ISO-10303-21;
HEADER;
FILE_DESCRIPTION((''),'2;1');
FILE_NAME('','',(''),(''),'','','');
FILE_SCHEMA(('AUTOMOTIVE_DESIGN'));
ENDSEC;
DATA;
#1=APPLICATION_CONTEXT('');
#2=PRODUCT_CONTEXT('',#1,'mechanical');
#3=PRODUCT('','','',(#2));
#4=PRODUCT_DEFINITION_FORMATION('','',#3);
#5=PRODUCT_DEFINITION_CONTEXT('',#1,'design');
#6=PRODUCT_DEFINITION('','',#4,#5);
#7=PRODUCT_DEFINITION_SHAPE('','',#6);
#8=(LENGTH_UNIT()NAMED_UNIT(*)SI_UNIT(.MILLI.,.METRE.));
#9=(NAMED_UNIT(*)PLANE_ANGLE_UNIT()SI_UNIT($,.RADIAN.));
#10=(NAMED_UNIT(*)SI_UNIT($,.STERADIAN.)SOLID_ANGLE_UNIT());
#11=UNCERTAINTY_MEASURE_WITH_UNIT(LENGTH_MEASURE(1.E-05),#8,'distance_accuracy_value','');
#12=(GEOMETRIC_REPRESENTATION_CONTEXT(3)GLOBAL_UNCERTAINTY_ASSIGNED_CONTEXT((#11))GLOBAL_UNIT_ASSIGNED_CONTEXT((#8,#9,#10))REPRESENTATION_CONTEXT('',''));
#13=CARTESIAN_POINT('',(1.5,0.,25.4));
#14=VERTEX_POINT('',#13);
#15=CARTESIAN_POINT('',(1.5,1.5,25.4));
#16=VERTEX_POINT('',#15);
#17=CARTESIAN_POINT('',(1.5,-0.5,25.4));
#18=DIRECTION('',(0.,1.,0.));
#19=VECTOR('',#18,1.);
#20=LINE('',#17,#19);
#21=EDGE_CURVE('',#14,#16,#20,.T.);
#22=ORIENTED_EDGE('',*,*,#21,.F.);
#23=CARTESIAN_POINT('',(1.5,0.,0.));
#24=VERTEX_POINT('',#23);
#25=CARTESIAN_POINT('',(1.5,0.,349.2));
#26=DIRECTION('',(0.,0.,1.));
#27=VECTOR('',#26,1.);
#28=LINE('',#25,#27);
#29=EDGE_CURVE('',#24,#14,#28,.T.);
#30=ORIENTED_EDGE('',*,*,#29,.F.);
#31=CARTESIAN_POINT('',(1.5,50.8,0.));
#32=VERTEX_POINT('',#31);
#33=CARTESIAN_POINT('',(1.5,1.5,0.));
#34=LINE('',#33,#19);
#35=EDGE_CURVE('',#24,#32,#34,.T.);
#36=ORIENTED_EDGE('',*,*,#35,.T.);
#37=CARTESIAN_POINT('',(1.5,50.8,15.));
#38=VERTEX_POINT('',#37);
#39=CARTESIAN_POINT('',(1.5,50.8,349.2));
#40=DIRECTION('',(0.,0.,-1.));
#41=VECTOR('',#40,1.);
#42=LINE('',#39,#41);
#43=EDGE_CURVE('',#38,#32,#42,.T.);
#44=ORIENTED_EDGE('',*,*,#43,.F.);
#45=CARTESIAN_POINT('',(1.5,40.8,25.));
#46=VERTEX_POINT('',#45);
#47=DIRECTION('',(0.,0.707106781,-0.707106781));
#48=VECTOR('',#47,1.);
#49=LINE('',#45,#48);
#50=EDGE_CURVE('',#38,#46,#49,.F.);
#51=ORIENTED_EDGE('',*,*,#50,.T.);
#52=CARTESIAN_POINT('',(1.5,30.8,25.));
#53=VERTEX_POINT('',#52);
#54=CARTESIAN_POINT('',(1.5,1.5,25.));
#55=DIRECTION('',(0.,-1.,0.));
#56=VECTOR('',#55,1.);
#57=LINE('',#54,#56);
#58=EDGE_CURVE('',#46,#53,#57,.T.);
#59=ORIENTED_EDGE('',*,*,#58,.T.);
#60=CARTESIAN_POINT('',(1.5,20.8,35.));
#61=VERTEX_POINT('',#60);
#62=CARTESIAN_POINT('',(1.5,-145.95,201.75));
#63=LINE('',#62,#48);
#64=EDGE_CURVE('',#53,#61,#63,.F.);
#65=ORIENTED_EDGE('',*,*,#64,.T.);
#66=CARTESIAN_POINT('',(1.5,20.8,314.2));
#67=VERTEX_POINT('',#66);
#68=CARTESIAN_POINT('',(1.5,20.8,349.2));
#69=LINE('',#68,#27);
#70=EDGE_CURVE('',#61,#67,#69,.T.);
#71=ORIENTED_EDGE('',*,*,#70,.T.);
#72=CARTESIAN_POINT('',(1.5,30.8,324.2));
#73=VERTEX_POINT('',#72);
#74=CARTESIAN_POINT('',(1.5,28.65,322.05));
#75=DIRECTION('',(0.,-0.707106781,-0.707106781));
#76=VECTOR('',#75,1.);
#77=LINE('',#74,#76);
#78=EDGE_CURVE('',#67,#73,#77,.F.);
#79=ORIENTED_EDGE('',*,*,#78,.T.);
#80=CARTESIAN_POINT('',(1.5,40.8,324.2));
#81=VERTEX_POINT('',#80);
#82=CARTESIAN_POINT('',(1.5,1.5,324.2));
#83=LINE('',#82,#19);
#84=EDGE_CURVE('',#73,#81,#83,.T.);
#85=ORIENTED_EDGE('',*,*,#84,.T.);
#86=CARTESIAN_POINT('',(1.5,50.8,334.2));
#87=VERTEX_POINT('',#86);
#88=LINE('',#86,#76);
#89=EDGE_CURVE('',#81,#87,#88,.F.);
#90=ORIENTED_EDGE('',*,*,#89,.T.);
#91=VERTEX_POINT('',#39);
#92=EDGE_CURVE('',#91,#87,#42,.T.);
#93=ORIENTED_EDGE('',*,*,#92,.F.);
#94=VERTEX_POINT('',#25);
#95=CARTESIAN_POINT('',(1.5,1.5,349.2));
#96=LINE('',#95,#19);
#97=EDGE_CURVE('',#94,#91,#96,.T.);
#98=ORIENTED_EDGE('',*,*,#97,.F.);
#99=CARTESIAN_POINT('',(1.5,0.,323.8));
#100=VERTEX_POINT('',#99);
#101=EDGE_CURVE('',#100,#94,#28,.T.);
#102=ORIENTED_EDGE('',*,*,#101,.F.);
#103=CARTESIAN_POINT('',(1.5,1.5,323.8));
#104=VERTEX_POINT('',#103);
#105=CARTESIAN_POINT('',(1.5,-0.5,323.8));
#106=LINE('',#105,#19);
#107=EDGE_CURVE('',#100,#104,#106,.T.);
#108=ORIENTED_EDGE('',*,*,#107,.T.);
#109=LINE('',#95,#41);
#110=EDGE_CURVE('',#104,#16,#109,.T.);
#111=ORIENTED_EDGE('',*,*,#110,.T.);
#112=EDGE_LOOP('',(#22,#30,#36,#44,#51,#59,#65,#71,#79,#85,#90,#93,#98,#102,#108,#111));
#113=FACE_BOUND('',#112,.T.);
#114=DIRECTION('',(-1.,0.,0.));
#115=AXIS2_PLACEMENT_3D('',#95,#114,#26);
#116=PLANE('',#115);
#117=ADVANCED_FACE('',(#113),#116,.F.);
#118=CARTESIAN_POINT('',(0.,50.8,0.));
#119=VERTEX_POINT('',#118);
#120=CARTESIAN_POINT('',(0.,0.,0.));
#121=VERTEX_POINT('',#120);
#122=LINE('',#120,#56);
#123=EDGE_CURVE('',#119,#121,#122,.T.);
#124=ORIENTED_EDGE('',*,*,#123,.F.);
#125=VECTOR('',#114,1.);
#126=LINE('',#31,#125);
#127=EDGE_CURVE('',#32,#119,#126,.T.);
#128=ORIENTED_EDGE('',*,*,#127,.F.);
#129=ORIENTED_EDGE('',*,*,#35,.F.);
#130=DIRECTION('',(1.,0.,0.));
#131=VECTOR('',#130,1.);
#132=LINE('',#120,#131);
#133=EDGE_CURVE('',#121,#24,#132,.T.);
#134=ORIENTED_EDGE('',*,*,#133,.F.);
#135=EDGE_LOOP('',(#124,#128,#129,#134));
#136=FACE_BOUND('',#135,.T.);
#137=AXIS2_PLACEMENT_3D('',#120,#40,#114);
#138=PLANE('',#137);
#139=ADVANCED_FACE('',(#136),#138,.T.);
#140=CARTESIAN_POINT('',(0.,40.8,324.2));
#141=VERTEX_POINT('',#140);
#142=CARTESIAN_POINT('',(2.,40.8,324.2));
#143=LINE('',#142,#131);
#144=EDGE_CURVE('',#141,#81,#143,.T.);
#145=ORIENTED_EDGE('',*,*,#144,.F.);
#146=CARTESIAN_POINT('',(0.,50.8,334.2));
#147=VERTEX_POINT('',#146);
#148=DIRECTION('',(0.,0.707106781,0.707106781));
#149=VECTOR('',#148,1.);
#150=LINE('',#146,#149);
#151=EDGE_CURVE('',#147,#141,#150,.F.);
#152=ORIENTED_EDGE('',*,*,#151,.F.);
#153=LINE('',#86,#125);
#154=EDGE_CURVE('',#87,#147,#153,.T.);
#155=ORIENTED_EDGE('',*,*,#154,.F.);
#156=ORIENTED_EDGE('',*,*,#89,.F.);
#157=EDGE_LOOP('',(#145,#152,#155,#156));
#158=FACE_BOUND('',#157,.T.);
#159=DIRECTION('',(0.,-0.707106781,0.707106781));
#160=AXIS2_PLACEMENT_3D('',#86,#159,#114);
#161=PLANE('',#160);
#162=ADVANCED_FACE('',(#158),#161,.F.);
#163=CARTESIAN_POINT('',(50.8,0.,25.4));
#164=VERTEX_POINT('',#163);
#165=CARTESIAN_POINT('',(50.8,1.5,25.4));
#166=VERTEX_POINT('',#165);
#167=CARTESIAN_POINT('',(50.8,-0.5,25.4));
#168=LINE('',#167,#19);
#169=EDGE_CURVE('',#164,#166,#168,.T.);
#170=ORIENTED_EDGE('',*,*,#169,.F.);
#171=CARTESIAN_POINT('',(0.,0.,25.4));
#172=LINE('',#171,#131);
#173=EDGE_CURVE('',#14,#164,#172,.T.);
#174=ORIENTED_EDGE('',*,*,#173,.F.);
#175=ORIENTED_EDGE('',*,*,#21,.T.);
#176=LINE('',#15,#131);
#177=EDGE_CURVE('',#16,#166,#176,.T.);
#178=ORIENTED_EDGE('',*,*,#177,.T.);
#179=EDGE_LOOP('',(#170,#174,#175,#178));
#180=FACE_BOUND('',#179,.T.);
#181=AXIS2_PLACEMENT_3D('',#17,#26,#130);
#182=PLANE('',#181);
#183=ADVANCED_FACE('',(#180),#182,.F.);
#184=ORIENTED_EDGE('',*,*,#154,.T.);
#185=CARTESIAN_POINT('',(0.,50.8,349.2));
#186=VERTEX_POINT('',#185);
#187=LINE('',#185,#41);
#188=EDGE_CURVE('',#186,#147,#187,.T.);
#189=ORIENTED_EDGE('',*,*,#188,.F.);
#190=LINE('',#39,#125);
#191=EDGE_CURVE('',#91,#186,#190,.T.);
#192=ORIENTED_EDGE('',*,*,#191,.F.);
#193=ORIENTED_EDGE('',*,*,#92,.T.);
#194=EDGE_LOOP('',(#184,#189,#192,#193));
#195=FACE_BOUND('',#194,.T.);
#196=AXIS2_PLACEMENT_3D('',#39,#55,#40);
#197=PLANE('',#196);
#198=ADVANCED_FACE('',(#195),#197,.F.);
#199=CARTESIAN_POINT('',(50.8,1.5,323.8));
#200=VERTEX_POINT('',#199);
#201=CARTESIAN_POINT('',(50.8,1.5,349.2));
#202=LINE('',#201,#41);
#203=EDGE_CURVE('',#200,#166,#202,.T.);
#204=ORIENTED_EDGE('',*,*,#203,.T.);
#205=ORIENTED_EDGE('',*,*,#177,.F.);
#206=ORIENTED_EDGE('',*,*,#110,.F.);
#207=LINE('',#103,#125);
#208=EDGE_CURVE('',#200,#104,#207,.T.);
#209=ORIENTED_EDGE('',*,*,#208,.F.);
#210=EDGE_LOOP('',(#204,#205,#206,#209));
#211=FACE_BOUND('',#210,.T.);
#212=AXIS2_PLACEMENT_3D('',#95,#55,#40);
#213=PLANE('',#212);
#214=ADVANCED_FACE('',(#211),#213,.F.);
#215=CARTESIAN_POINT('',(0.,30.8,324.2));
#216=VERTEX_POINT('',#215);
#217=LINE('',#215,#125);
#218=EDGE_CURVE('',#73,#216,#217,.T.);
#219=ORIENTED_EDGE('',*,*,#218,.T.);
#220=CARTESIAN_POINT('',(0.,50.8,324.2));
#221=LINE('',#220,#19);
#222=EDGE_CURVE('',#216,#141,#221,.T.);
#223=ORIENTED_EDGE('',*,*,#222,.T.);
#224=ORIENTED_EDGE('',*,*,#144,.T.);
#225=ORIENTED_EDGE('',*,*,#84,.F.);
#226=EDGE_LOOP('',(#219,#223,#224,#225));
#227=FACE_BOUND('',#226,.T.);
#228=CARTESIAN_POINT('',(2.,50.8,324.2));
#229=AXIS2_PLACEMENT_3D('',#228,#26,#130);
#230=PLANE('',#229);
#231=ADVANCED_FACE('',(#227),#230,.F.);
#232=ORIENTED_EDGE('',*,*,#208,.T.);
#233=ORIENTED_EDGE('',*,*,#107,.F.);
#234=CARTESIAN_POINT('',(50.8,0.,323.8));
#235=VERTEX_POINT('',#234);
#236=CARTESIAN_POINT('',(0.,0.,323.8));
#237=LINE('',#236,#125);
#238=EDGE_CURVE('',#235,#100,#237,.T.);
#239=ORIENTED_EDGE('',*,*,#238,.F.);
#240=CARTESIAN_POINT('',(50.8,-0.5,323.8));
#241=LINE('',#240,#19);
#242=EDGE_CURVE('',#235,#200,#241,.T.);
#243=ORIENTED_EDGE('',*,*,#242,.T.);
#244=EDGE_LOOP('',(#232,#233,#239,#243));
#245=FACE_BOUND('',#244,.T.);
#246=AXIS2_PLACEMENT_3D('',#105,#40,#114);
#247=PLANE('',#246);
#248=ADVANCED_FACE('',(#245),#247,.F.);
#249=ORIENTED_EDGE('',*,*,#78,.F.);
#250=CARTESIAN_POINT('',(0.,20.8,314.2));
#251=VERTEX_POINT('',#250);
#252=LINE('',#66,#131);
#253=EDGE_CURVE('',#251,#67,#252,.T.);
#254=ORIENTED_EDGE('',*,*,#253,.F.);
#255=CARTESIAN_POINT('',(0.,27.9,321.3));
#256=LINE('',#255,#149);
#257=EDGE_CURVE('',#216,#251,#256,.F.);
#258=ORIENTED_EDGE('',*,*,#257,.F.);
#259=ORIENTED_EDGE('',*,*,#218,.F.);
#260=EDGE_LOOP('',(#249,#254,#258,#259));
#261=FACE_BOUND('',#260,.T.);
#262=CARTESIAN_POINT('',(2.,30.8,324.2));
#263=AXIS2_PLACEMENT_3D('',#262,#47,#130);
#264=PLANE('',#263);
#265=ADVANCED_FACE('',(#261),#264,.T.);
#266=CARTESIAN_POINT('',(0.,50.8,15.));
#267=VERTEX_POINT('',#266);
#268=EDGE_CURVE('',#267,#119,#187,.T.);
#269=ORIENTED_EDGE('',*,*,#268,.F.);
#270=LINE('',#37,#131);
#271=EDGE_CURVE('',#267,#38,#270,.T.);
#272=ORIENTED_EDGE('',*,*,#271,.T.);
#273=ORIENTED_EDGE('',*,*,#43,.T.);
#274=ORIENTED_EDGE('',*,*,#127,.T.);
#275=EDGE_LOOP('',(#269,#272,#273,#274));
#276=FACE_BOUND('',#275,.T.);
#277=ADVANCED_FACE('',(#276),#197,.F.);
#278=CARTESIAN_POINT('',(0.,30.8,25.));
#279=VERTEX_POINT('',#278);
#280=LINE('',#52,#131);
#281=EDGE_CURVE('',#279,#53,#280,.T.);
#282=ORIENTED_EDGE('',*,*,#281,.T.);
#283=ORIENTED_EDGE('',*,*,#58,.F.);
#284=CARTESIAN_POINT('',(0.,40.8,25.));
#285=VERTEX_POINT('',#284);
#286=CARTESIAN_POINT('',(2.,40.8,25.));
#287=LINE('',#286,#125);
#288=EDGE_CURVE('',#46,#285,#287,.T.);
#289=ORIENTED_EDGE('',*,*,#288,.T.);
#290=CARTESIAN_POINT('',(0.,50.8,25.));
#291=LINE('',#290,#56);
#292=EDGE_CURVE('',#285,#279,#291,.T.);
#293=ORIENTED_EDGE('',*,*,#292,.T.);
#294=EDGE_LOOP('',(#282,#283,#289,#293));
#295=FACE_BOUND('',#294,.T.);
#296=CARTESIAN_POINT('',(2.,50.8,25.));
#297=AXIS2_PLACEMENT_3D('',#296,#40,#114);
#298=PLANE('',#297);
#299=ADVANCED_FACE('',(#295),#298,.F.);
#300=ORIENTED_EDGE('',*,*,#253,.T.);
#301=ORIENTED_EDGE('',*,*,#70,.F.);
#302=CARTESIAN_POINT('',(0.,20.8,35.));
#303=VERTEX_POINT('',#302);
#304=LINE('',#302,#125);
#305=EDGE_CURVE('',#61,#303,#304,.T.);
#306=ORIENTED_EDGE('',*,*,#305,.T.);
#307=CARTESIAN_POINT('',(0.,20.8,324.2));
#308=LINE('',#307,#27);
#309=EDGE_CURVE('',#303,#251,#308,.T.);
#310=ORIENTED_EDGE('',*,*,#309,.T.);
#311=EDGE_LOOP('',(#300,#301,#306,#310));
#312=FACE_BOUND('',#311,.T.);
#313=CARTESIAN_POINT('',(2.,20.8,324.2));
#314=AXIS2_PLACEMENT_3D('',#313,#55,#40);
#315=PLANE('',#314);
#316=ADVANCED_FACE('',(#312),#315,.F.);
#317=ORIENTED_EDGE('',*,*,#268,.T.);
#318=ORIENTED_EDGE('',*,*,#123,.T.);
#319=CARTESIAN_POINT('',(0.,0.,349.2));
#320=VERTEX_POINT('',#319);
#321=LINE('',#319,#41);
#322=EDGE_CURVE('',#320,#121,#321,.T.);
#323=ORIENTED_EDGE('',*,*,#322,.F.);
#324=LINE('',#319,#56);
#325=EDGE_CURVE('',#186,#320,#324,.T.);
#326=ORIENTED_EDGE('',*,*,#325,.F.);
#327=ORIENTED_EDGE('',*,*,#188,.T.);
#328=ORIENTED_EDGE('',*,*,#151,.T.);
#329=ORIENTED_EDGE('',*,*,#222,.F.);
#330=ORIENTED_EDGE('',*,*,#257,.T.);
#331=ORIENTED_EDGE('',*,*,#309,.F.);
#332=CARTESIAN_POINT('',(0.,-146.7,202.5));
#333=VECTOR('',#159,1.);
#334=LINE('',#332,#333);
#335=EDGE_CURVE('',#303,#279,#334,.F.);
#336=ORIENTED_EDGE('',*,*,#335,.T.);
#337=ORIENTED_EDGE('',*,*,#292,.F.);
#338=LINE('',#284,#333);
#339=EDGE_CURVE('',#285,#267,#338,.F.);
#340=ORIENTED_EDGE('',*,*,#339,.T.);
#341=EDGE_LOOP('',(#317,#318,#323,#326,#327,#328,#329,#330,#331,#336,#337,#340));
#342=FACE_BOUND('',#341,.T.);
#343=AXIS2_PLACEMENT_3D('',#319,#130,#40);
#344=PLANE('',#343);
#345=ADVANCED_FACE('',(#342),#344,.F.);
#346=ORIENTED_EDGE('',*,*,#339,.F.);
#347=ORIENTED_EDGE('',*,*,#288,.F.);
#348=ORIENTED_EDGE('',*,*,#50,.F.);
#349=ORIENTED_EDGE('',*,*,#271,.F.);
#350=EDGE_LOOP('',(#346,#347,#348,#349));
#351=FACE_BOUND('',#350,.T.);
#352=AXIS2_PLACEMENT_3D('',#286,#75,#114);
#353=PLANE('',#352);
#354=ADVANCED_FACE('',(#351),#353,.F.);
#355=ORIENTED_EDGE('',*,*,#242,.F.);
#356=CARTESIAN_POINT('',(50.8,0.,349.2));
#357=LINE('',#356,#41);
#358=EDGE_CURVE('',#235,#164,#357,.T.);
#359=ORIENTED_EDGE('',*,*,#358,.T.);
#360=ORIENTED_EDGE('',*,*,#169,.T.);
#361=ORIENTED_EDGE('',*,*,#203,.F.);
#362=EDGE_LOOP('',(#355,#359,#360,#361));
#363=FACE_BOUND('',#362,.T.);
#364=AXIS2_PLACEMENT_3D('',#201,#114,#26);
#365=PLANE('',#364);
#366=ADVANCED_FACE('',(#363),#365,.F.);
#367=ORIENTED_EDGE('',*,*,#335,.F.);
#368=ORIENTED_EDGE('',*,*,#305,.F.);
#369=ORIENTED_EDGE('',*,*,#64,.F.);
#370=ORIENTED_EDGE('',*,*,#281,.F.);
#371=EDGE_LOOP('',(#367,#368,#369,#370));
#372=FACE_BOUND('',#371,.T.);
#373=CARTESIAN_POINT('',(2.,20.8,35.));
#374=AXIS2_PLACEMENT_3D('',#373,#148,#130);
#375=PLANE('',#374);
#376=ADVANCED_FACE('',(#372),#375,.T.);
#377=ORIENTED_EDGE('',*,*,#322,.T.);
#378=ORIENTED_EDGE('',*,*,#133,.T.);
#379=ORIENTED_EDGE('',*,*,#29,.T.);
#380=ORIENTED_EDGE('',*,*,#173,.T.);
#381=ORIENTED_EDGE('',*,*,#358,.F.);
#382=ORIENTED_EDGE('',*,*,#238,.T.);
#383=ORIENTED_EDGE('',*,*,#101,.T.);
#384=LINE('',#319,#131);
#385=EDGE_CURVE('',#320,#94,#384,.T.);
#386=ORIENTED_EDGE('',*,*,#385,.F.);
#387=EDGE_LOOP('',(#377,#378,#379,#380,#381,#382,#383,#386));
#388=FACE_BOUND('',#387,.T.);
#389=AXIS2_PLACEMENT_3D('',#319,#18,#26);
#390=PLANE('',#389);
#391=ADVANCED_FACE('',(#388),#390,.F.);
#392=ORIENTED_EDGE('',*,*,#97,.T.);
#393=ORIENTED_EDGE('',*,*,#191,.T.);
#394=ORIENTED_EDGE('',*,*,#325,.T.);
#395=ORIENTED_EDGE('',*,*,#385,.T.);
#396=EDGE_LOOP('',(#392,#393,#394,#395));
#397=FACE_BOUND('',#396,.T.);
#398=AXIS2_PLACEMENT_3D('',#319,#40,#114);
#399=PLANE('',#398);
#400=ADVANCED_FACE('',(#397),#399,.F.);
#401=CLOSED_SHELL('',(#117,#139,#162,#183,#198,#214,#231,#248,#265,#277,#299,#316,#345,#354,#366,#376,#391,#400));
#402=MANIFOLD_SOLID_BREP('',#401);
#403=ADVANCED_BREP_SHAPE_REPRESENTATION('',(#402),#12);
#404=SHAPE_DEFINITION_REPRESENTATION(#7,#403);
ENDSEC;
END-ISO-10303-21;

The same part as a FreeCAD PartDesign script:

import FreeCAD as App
import Part
import Sketcher
from FreeCAD import Vector


def edges_at(feature, points):
    """Names of the edges that pass closest to the given points."""
    edges = feature.Shape.Edges
    near = lambda p: min(range(len(edges)), key=lambda i: edges[i].distToShape(Part.Vertex(*p))[0])
    return sorted({f"Edge{near(p) + 1}" for p in points})

doc = App.newDocument("Part")
body = doc.addObject("PartDesign::Body", "Body")

sketch1 = doc.addObject("Sketcher::SketchObject", "Sketch")
body.addObject(sketch1)
sketch1.AttachmentSupport = (doc.XY_Plane, [""])
sketch1.MapMode = "FlatFace"
sketch1.addGeometry([
    Part.LineSegment(Vector(0, 50.8, 0), Vector(0, 0, 0)),
    Part.LineSegment(Vector(0, 0, 0), Vector(50.8, 0, 0)),
    Part.LineSegment(Vector(50.8, 0, 0), Vector(50.8, 1.5, 0)),
    Part.LineSegment(Vector(50.8, 1.5, 0), Vector(1.5, 1.5, 0)),
    Part.LineSegment(Vector(1.5, 1.5, 0), Vector(1.5, 50.8, 0)),
    Part.LineSegment(Vector(1.5, 50.8, 0), Vector(0, 50.8, 0)),
], False)
sketch1.addConstraint([
    Sketcher.Constraint("Coincident", 0, 2, 1, 1),
    Sketcher.Constraint("Coincident", 1, 2, 2, 1),
    Sketcher.Constraint("Coincident", 2, 2, 3, 1),
    Sketcher.Constraint("Coincident", 3, 2, 4, 1),
    Sketcher.Constraint("Coincident", 4, 2, 5, 1),
    Sketcher.Constraint("Coincident", 5, 2, 0, 1),
    Sketcher.Constraint("Vertical", 0),
    Sketcher.Constraint("Horizontal", 1),
    Sketcher.Constraint("Vertical", 2),
    Sketcher.Constraint("Horizontal", 3),
    Sketcher.Constraint("Vertical", 4),
    Sketcher.Constraint("Horizontal", 5),
    Sketcher.Constraint("Coincident", 0, 2, -1, 1),
    Sketcher.Constraint("Equal", 1, 0),
    Sketcher.Constraint("Equal", 5, 2),
    Sketcher.Constraint("DistanceX", 1, 1, 1, 2, 50.8),
    Sketcher.Constraint("DistanceX", 3, 2, 3, 1, 49.3),
])
pad1 = doc.addObject("PartDesign::Pad", "Pad")
body.addObject(pad1)
pad1.Profile = sketch1
pad1.Length = 349.2

sketch2 = doc.addObject("Sketcher::SketchObject", "Sketch001")
body.addObject(sketch2)
sketch2.AttachmentSupport = (doc.YZ_Plane, [""])
sketch2.MapMode = "FlatFace"
sketch2.addGeometry([
    Part.Circle(Vector(25.4, 126.6, 0), Vector(0, 0, 1), 4),
    Part.Circle(Vector(25.4, 222.6, 0), Vector(0, 0, 1), 4),
    Part.Circle(Vector(25.4, 30.6, 0), Vector(0, 0, 1), 4),
    Part.Circle(Vector(25.4, 318.6, 0), Vector(0, 0, 1), 4),
], False)
sketch2.addConstraint([
    Sketcher.Constraint("Equal", 0, 1),
    Sketcher.Constraint("Equal", 1, 2),
    Sketcher.Constraint("Equal", 2, 3),
    Sketcher.Constraint("Vertical", 0, 3, 1, 3),
    Sketcher.Constraint("Vertical", 1, 3, 2, 3),
    Sketcher.Constraint("Vertical", 2, 3, 3, 3),
    Sketcher.Constraint("Diameter", 0, 8.0),
    Sketcher.Constraint("DistanceY", 0, 3, 1, 3, 96.0),
    Sketcher.Constraint("DistanceY", 2, 3, 0, 3, 96.0),
    Sketcher.Constraint("DistanceY", 1, 3, 3, 3, 96.0),
    Sketcher.Constraint("DistanceX", -1, 1, 0, 3, 25.4),
    Sketcher.Constraint("DistanceY", -1, 1, 0, 3, 126.6),
])
pocket1 = doc.addObject("PartDesign::Pocket", "Pocket")
body.addObject(pocket1)
pocket1.Profile = sketch2
pocket1.Length = 2
pocket1.Reversed = True

sketch3 = doc.addObject("Sketcher::SketchObject", "Sketch002")
body.addObject(sketch3)
sketch3.AttachmentSupport = (doc.XZ_Plane, [""])
sketch3.MapMode = "FlatFace"
sketch3.AttachmentOffset = App.Placement(Vector(0, 0, -1.5), App.Rotation())
sketch3.addGeometry([
    Part.LineSegment(Vector(2, 0, 0), Vector(2, 25, 0)),
    Part.LineSegment(Vector(2, 25, 0), Vector(51, 25, 0)),
    Part.LineSegment(Vector(51, 25, 0), Vector(51, 0, 0)),
    Part.LineSegment(Vector(51, 0, 0), Vector(2, 0, 0)),
    Part.LineSegment(Vector(2, 324, 0), Vector(2, 349, 0)),
    Part.LineSegment(Vector(2, 349, 0), Vector(51, 349, 0)),
    Part.LineSegment(Vector(51, 349, 0), Vector(51, 324, 0)),
    Part.LineSegment(Vector(51, 324, 0), Vector(2, 324, 0)),
], False)
sketch3.addConstraint([
    Sketcher.Constraint("Coincident", 0, 2, 1, 1),
    Sketcher.Constraint("Coincident", 1, 2, 2, 1),
    Sketcher.Constraint("Coincident", 2, 2, 3, 1),
    Sketcher.Constraint("Coincident", 3, 2, 0, 1),
    Sketcher.Constraint("Coincident", 4, 2, 5, 1),
    Sketcher.Constraint("Coincident", 5, 2, 6, 1),
    Sketcher.Constraint("Coincident", 6, 2, 7, 1),
    Sketcher.Constraint("Coincident", 7, 2, 4, 1),
    Sketcher.Constraint("Vertical", 0),
    Sketcher.Constraint("Horizontal", 1),
    Sketcher.Constraint("Vertical", 2),
    Sketcher.Constraint("Horizontal", 3),
    Sketcher.Constraint("Vertical", 4),
    Sketcher.Constraint("Horizontal", 5),
    Sketcher.Constraint("Vertical", 6),
    Sketcher.Constraint("Horizontal", 7),
    Sketcher.Constraint("PointOnObject", 2, 2, -1),
    Sketcher.Constraint("Vertical", 3, 2, 4, 2),
    Sketcher.Constraint("Vertical", 2, 2, 5, 2),
    Sketcher.Constraint("Equal", 2, 4),
    Sketcher.Constraint("DistanceX", 1, 1, 1, 2, 49.3),
    Sketcher.Constraint("DistanceY", 0, 1, 0, 2, 25.4),
    Sketcher.Constraint("DistanceX", -1, 1, 0, 2, 1.5),
    Sketcher.Constraint("DistanceY", -1, 1, 4, 2, 349.2),
])
pocket2 = doc.addObject("PartDesign::Pocket", "Pocket001")
body.addObject(pocket2)
pocket2.Profile = sketch3
pocket2.Length = 2
pocket2.Reversed = True

sketch4 = doc.addObject("Sketcher::SketchObject", "Sketch003")
body.addObject(sketch4)
sketch4.AttachmentSupport = (doc.YZ_Plane, [""])
sketch4.MapMode = "FlatFace"
sketch4.addGeometry([
    Part.LineSegment(Vector(51, 25, 0), Vector(21, 25, 0)),
    Part.LineSegment(Vector(21, 25, 0), Vector(21, 324, 0)),
    Part.LineSegment(Vector(21, 324, 0), Vector(51, 324, 0)),
    Part.LineSegment(Vector(51, 324, 0), Vector(51, 25, 0)),
], False)
sketch4.addConstraint([
    Sketcher.Constraint("Coincident", 0, 2, 1, 1),
    Sketcher.Constraint("Coincident", 1, 2, 2, 1),
    Sketcher.Constraint("Coincident", 2, 2, 3, 1),
    Sketcher.Constraint("Coincident", 3, 2, 0, 1),
    Sketcher.Constraint("Horizontal", 0),
    Sketcher.Constraint("Vertical", 1),
    Sketcher.Constraint("Horizontal", 2),
    Sketcher.Constraint("Vertical", 3),
    Sketcher.Constraint("DistanceX", 0, 2, 0, 1, 30.0),
    Sketcher.Constraint("DistanceY", 1, 1, 1, 2, 299.2),
    Sketcher.Constraint("DistanceY", -1, 1, 0, 2, 25.0),
    Sketcher.Constraint("DistanceX", -1, 1, 0, 2, 20.8),
])
pocket3 = doc.addObject("PartDesign::Pocket", "Pocket002")
body.addObject(pocket3)
pocket3.Profile = sketch4
pocket3.Length = 2
pocket3.Reversed = True
doc.recompute()

chamfer = doc.addObject("PartDesign::Chamfer", "Chamfer")
body.addObject(chamfer)
chamfer.Base = (pocket3, edges_at(pocket3, [
    (0.75, 50.8, 25),
    (0.75, 50.8, 324.2),
    (0.75, 20.8, 324.2),
    (0.75, 20.8, 25),
]))
chamfer.Size = 10

doc.recompute()
